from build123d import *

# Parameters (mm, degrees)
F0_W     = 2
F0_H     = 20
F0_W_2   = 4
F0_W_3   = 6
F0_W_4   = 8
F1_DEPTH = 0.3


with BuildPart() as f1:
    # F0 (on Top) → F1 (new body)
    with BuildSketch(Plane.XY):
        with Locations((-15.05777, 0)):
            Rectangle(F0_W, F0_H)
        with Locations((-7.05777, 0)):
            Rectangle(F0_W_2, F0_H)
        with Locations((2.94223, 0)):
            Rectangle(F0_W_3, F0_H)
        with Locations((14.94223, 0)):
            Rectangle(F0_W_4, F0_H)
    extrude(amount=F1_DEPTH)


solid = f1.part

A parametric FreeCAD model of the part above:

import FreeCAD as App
import Part
import Sketcher
from FreeCAD import Vector
Q = App.Units.Quantity


def add_polygon(sketch, points):
    """Adds a closed chain of lines whose ends are joined by coincident constraints."""
    first, n = sketch.GeometryCount, len(points)
    for a, b in zip(points, points[1:] + points[:1]):
        sketch.addGeometry(Part.LineSegment(App.Vector(*a, 0), App.Vector(*b, 0)), False)
    for i in range(n):
        sketch.addConstraint(Sketcher.Constraint("Coincident", first + i, 2, first + (i + 1) % n, 1))

doc = App.newDocument("Part")
body = doc.addObject("PartDesign::Body", "Body")
body.AllowCompound = True

# Sketch on XY plane
sketch1 = doc.addObject("Sketcher::SketchObject", "Sketch")
body.addObject(sketch1)
sketch1.AttachmentSupport = (doc.XY_Plane, [""])
sketch1.MapMode = "FlatFace"
add_polygon(sketch1, [(-16.05777, 10), (-16.05777, -10), (-14.05777, -10), (-14.05777, 10)])  # lines 0-3
add_polygon(sketch1, [(-9.05777, 10), (-9.05777, -10), (-5.05777, -10), (-5.05777, 10)])  # lines 4-7
add_polygon(sketch1, [(-0.05777, 10), (-0.05777, -10), (5.94223, -10), (5.94223, 10)])  # lines 8-11
add_polygon(sketch1, [(10.94223, 10), (10.94223, -10), (18.94223, -10), (18.94223, 10)])  # lines 12-15
sketch1.addConstraint([
    Sketcher.Constraint("Vertical", 0),
    Sketcher.Constraint("Horizontal", 1),
    Sketcher.Constraint("Vertical", 2),
    Sketcher.Constraint("Horizontal", 3),
    Sketcher.Constraint("Vertical", 4),
    Sketcher.Constraint("Horizontal", 5),
    Sketcher.Constraint("Vertical", 6),
    Sketcher.Constraint("Horizontal", 7),
    Sketcher.Constraint("Vertical", 8),
    Sketcher.Constraint("Horizontal", 9),
    Sketcher.Constraint("Vertical", 10),
    Sketcher.Constraint("Horizontal", 11),
    Sketcher.Constraint("Vertical", 12),
    Sketcher.Constraint("Horizontal", 13),
    Sketcher.Constraint("Vertical", 14),
    Sketcher.Constraint("Horizontal", 15),
    Sketcher.Constraint("Horizontal", 1, 2, 4, 2),
    Sketcher.Constraint("Horizontal", 3, 2, 6, 2),
    Sketcher.Constraint("Horizontal", 5, 2, 8, 2),
    Sketcher.Constraint("Horizontal", 7, 2, 10, 2),
    Sketcher.Constraint("Horizontal", 9, 2, 12, 2),
    Sketcher.Constraint("Horizontal", 11, 2, 14, 2),
    Sketcher.Constraint("DistanceX", 1, 1, 1, 2, Q("2 mm")),
    Sketcher.Constraint("DistanceX", 5, 1, 5, 2, Q("4 mm")),
    Sketcher.Constraint("DistanceX", 9, 1, 9, 2, Q("6 mm")),
    Sketcher.Constraint("DistanceX", 13, 1, 13, 2, Q("8 mm")),
    Sketcher.Constraint("DistanceY", 0, 2, 0, 1, Q("20 mm")),
    Sketcher.Constraint("DistanceY", 0, 2, -1, 1, Q("10 mm")),
    Sketcher.Constraint("DistanceX", 1, 2, 4, 2, Q("5 mm")),
    Sketcher.Constraint("DistanceX", 5, 2, 8, 2, Q("5 mm")),
    Sketcher.Constraint("DistanceX", 9, 2, 12, 2, Q("5 mm")),
    Sketcher.Constraint("DistanceX", 0, 2, -1, 1, Q("16.05777 mm")),
])
pad1 = doc.addObject("PartDesign::Pad", "Pad")
body.addObject(pad1)
pad1.Profile = sketch1
pad1.Length = 0.3

doc.recompute()
